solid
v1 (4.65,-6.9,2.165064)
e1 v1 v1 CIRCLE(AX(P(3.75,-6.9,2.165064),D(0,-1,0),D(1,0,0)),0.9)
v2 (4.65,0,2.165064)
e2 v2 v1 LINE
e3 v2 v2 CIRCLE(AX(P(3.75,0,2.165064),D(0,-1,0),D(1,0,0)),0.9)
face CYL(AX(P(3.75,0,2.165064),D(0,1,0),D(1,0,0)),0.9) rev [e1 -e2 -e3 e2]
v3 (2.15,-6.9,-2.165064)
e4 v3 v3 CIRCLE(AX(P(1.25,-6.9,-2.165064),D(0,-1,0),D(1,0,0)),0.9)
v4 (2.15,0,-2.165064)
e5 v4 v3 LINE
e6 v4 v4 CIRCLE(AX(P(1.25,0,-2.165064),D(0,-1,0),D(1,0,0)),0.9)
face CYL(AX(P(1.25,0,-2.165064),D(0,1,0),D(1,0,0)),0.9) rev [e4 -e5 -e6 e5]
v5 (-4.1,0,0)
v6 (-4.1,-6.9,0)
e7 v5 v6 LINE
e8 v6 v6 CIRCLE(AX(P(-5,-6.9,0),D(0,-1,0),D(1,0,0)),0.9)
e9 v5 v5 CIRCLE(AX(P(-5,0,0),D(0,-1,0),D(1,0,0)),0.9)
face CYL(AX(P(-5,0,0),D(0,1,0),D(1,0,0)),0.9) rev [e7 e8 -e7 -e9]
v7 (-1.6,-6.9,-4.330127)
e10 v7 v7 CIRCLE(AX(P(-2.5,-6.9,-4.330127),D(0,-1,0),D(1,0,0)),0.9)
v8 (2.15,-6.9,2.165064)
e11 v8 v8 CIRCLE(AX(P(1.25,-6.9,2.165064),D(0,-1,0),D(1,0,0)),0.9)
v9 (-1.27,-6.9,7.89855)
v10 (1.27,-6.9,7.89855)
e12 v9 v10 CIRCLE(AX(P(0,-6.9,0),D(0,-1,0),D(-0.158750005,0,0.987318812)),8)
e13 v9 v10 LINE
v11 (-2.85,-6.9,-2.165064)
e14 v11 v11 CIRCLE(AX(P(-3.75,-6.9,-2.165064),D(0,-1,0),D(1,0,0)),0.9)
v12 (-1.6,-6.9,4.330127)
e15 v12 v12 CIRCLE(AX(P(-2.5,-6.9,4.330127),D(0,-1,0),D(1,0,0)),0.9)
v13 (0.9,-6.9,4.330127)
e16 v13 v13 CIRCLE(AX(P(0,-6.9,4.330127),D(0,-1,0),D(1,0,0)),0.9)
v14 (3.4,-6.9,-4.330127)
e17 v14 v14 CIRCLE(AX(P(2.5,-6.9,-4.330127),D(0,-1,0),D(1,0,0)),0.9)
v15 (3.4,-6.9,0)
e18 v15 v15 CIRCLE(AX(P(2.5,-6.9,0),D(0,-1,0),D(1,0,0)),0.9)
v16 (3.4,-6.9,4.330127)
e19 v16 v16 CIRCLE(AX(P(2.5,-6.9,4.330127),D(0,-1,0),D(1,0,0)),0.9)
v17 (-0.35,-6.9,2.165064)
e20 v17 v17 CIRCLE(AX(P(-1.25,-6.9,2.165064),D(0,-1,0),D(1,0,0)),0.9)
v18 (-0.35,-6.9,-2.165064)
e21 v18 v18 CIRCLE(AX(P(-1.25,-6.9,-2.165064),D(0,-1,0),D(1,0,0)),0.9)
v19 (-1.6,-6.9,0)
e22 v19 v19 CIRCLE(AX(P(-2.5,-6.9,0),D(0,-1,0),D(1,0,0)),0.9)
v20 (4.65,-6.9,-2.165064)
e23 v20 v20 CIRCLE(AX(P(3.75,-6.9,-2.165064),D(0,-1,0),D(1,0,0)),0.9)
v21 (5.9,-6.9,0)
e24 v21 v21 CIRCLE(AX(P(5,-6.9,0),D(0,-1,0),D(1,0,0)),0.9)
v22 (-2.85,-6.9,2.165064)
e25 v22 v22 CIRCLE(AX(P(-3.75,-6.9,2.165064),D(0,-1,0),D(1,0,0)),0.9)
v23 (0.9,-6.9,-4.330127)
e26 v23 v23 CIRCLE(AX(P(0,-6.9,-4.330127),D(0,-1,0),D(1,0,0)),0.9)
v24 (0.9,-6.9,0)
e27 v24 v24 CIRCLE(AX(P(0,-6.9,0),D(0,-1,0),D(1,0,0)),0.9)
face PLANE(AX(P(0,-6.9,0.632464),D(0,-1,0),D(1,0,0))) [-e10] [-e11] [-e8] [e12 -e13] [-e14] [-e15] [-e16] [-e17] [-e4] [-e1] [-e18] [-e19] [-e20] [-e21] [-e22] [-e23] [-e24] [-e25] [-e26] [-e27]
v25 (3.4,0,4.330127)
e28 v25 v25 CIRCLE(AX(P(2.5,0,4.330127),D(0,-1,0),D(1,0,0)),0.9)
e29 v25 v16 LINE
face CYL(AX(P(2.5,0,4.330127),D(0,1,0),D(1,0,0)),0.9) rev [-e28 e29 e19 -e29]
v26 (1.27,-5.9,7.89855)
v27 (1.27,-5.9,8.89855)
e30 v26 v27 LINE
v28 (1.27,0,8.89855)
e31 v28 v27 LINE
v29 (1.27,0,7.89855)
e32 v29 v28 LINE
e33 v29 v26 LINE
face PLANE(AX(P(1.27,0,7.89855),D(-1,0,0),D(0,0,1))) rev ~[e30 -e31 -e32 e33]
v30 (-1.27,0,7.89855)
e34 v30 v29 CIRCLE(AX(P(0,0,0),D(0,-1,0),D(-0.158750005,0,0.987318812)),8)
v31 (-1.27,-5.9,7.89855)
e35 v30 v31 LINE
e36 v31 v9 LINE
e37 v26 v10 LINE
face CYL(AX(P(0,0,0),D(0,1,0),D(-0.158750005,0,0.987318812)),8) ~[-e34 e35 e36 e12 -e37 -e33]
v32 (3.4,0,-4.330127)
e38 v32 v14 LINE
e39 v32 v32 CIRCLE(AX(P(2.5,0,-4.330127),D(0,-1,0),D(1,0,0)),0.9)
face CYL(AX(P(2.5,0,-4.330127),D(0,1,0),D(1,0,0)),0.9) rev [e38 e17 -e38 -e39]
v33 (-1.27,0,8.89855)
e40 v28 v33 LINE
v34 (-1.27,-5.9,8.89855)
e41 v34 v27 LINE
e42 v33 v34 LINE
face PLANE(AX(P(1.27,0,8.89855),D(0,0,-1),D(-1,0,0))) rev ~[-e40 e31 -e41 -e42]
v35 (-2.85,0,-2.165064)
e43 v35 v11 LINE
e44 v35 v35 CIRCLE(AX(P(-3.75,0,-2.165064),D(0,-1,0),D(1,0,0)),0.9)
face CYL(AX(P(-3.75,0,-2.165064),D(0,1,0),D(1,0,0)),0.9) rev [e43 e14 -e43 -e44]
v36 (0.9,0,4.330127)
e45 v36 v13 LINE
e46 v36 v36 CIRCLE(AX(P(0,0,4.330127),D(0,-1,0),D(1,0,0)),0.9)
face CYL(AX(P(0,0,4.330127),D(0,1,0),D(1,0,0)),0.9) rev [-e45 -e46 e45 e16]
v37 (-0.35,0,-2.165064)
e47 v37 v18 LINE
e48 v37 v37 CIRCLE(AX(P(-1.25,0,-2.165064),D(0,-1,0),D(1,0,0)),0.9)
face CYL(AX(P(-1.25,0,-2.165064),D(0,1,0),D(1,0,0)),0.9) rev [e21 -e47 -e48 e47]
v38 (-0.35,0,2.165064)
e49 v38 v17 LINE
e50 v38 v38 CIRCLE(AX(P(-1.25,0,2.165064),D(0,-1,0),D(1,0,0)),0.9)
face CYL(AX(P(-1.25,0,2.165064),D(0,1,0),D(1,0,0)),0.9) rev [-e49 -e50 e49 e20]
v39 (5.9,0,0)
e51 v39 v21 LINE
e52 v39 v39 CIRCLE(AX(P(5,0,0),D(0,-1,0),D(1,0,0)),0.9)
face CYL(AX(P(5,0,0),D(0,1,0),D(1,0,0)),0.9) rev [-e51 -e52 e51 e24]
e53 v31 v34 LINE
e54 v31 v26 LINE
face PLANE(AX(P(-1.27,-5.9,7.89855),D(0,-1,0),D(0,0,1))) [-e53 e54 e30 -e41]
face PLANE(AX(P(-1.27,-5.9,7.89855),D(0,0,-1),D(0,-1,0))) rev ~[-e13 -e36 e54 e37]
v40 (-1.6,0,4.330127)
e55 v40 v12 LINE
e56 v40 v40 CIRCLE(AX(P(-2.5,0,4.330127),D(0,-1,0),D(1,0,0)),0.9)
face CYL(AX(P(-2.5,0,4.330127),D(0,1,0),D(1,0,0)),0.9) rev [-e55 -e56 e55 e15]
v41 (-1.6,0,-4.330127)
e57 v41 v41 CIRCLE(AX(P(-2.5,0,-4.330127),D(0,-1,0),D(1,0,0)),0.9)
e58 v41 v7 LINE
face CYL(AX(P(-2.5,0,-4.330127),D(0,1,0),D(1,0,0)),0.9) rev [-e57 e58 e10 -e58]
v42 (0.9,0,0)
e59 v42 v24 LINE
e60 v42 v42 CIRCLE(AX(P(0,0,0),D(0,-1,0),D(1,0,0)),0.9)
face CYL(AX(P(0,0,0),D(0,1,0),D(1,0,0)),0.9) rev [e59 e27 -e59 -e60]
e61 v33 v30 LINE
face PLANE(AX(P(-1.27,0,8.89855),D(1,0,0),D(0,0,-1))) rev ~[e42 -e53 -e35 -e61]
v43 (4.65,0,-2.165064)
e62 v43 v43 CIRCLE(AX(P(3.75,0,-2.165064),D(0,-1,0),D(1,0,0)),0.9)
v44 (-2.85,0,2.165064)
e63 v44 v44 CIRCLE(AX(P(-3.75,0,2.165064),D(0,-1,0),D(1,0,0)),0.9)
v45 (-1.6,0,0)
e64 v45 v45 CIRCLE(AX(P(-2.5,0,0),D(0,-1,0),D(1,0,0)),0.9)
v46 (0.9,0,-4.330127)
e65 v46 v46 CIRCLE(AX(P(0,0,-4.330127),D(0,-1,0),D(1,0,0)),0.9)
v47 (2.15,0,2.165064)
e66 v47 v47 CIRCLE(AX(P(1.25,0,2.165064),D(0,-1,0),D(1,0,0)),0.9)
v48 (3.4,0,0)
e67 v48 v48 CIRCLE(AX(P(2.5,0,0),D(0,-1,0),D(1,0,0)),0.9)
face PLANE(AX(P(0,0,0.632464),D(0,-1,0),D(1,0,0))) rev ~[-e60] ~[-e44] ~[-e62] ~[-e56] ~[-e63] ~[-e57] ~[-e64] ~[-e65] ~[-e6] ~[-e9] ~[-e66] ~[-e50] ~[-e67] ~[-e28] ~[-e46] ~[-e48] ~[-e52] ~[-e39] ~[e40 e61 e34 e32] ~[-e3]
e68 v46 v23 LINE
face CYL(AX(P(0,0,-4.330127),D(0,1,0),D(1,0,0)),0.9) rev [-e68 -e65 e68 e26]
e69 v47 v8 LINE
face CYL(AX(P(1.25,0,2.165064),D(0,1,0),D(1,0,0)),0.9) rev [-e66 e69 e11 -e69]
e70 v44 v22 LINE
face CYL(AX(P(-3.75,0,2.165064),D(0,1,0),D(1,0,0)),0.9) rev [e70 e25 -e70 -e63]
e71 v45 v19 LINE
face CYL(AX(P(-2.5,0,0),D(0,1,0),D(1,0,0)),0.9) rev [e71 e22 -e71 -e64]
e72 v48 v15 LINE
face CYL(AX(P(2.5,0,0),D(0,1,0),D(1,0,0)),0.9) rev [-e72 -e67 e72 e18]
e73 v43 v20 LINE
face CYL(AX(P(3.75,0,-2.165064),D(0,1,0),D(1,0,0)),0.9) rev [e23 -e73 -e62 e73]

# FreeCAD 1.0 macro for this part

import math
import FreeCAD as App
import Part
import Sketcher
Q = App.Units.Quantity

doc = App.newDocument("Part")
body = doc.addObject("PartDesign::Body", "Body")

# Sketch on XZ plane
sketch1 = body.newObject("Sketcher::SketchObject", "Sketch")
sketch1.AttachmentSupport = (doc.getObject("XZ_Plane"), [""])
sketch1.MapMode = "FlatFace"
sketch1.addGeometry(Part.LineSegment(App.Vector(-1.27, 8.89855, 0), App.Vector(-1.27, 7.89855, 0)), False)
sketch1.addGeometry(Part.ArcOfCircle(Part.Circle(App.Vector(0, 0, 0), App.Vector(0, 0, 1), 8), math.radians(99.134349), math.radians(440.865651)), False)
sketch1.addGeometry(Part.LineSegment(App.Vector(1.27, 7.89855, 0), App.Vector(1.27, 8.89855, 0)), False)
sketch1.addGeometry(Part.LineSegment(App.Vector(1.27, 8.89855, 0), App.Vector(-1.27, 8.89855, 0)), False)
sketch1.addGeometry(Part.Circle(App.Vector(-2.5, -4.330127, 0), App.Vector(0, 0, 1), 0.9), False)
sketch1.addGeometry(Part.Circle(App.Vector(-3.75, -2.165064, 0), App.Vector(0, 0, 1), 0.9), False)
sketch1.addGeometry(Part.Circle(App.Vector(-1.25, -2.165064, 0), App.Vector(0, 0, 1), 0.9), False)
sketch1.addGeometry(Part.Circle(App.Vector(0, -4.330127, 0), App.Vector(0, 0, 1), 0.9), False)
sketch1.addGeometry(Part.Circle(App.Vector(2.5, -4.330127, 0), App.Vector(0, 0, 1), 0.9), False)
sketch1.addGeometry(Part.Circle(App.Vector(1.25, -2.165064, 0), App.Vector(0, 0, 1), 0.9), False)
sketch1.addGeometry(Part.Circle(App.Vector(3.75, -2.165064, 0), App.Vector(0, 0, 1), 0.9), False)
sketch1.addGeometry(Part.Circle(App.Vector(-5, 0, 0), App.Vector(0, 0, 1), 0.9), False)
sketch1.addGeometry(Part.Circle(App.Vector(-3.75, 2.165064, 0), App.Vector(0, 0, 1), 0.9), False)
sketch1.addGeometry(Part.Circle(App.Vector(-2.5, 0, 0), App.Vector(0, 0, 1), 0.9), False)
sketch1.addGeometry(Part.Circle(App.Vector(-1.25, 2.165064, 0), App.Vector(0, 0, 1), 0.9), False)
sketch1.addGeometry(Part.Circle(App.Vector(-2.5, 4.330127, 0), App.Vector(0, 0, 1), 0.9), False)
sketch1.addGeometry(Part.Circle(App.Vector(0, 0, 0), App.Vector(0, 0, 1), 0.9), False)
sketch1.addGeometry(Part.Circle(App.Vector(2.5, 0, 0), App.Vector(0, 0, 1), 0.9), False)
sketch1.addGeometry(Part.Circle(App.Vector(1.25, 2.165064, 0), App.Vector(0, 0, 1), 0.9), False)
sketch1.addGeometry(Part.Circle(App.Vector(5, 0, 0), App.Vector(0, 0, 1), 0.9), False)
sketch1.addGeometry(Part.Circle(App.Vector(3.75, 2.165064, 0), App.Vector(0, 0, 1), 0.9), False)
sketch1.addGeometry(Part.Circle(App.Vector(0, 4.330127, 0), App.Vector(0, 0, 1), 0.9), False)
sketch1.addGeometry(Part.Circle(App.Vector(2.5, 4.330127, 0), App.Vector(0, 0, 1), 0.9), False)
sketch1.addConstraint(Sketcher.Constraint("Coincident", 0, 2, 1, 1))
sketch1.addConstraint(Sketcher.Constraint("Coincident", 1, 2, 2, 1))
sketch1.addConstraint(Sketcher.Constraint("Coincident", 2, 2, 3, 1))
sketch1.addConstraint(Sketcher.Constraint("Coincident", 3, 2, 0, 1))
sketch1.addConstraint(Sketcher.Constraint("Vertical", 0))
sketch1.addConstraint(Sketcher.Constraint("Vertical", 2))
sketch1.addConstraint(Sketcher.Constraint("Horizontal", 3))
sketch1.addConstraint(Sketcher.Constraint("Coincident", 1, 3, -1, 1))
sketch1.addConstraint(Sketcher.Constraint("Coincident", 16, 3, -1, 1))
sketch1.addConstraint(Sketcher.Constraint("Equal", 4, 5))
sketch1.addConstraint(Sketcher.Constraint("Equal", 5, 6))
sketch1.addConstraint(Sketcher.Constraint("Equal", 6, 7))
sketch1.addConstraint(Sketcher.Constraint("Equal", 7, 8))
sketch1.addConstraint(Sketcher.Constraint("Equal", 8, 9))
sketch1.addConstraint(Sketcher.Constraint("Equal", 9, 10))
sketch1.addConstraint(Sketcher.Constraint("Equal", 10, 11))
sketch1.addConstraint(Sketcher.Constraint("Equal", 11, 12))
sketch1.addConstraint(Sketcher.Constraint("Equal", 12, 13))
sketch1.addConstraint(Sketcher.Constraint("Equal", 13, 14))
sketch1.addConstraint(Sketcher.Constraint("Equal", 14, 15))
sketch1.addConstraint(Sketcher.Constraint("Equal", 15, 16))
sketch1.addConstraint(Sketcher.Constraint("Equal", 16, 17))
sketch1.addConstraint(Sketcher.Constraint("Equal", 17, 18))
sketch1.addConstraint(Sketcher.Constraint("Equal", 18, 19))
sketch1.addConstraint(Sketcher.Constraint("Equal", 19, 20))
sketch1.addConstraint(Sketcher.Constraint("Equal", 20, 21))
sketch1.addConstraint(Sketcher.Constraint("Equal", 21, 22))
sketch1.addConstraint(Sketcher.Constraint("Symmetric", 10, 3, 12, 3, -1, 1))
sketch1.addConstraint(Sketcher.Constraint("Symmetric", 9, 3, 14, 3, -1, 1))
sketch1.addConstraint(Sketcher.Constraint("Symmetric", 8, 3, 15, 3, -1, 1))
sketch1.addConstraint(Sketcher.Constraint("Symmetric", 13, 3, 17, 3, -1, 1))
sketch1.addConstraint(Sketcher.Constraint("Symmetric", 6, 3, 18, 3, -1, 1))
sketch1.addConstraint(Sketcher.Constraint("Symmetric", 11, 3, 19, 3, -1, 1))
sketch1.addConstraint(Sketcher.Constraint("Symmetric", 5, 3, 20, 3, -1, 1))
sketch1.addConstraint(Sketcher.Constraint("Symmetric", 7, 3, 21, 3, -1, 1))
sketch1.addConstraint(Sketcher.Constraint("Symmetric", 4, 3, 22, 3, -1, 1))
sketch1.addConstraint(Sketcher.Constraint("Symmetric", 4, 3, 8, 3, -2))
sketch1.addConstraint(Sketcher.Constraint("Symmetric", 6, 3, 9, 3, -2))
sketch1.addConstraint(Sketcher.Constraint("Symmetric", 5, 3, 10, 3, -2))
sketch1.addConstraint(Sketcher.Constraint("PointOnObject", 7, 3, -2))
sketch1.addConstraint(Sketcher.Constraint("PointOnObject", 11, 3, -1))
sketch1.addConstraint(Sketcher.Constraint("PointOnObject", 13, 3, -1))
sketch1.addConstraint(Sketcher.Constraint("Horizontal", 5, 3, 6, 3))
sketch1.addConstraint(Sketcher.Constraint("Horizontal", 4, 3, 7, 3))
sketch1.addConstraint(Sketcher.Constraint("Horizontal", 0, 2, 1, 2))
sketch1.addConstraint(Sketcher.Constraint("Vertical", 4, 3, 13, 3))
sketch1.addConstraint(Sketcher.Constraint("Radius", 1, Q("8 mm")))
sketch1.addConstraint(Sketcher.Constraint("Diameter", 4, Q("1.8 mm")))
sketch1.addConstraint(Sketcher.Constraint("DistanceY", 0, 2, 0, 1, Q("1 mm")))
sketch1.addConstraint(Sketcher.Constraint("DistanceX", 11, 3, -1, 1, Q("5 mm")))
sketch1.addConstraint(Sketcher.Constraint("DistanceX", 4, 3, 8, 3, Q("5 mm")))
sketch1.addConstraint(Sketcher.Constraint("DistanceX", 6, 3, 10, 3, Q("5 mm")))
sketch1.addConstraint(Sketcher.Constraint("DistanceX", 3, 2, 3, 1, Q("2.54 mm")))
sketch1.addConstraint(Sketcher.Constraint("DistanceX", 5, 3, 6, 3, Q("2.5 mm")))
sketch1.addConstraint(Sketcher.Constraint("DistanceY", 5, 3, 12, 3, Q("4.330128 mm")))
sketch1.addConstraint(Sketcher.Constraint("DistanceY", 4, 3, 12, 3, Q("6.495191 mm")))
pad1 = body.newObject("PartDesign::Pad", "Pad")
pad1.Profile = sketch1
pad1.Length = 6.9

# Sketch on YZ plane
sketch2 = body.newObject("Sketcher::SketchObject", "Sketch001")
sketch2.AttachmentSupport = (doc.getObject("YZ_Plane"), [""])
sketch2.MapMode = "FlatFace"
sketch2.AttachmentOffset = App.Placement(App.Vector(0, 0, -1.27), App.Rotation())
sketch2.addGeometry(Part.LineSegment(App.Vector(-5.9, 8.89855, 0), App.Vector(-5.9, 7.89855, 0)), False)
sketch2.addGeometry(Part.LineSegment(App.Vector(-5.9, 7.89855, 0), App.Vector(-6.9, 7.89855, 0)), False)
sketch2.addGeometry(Part.LineSegment(App.Vector(-6.9, 7.89855, 0), App.Vector(-6.9, 8.89855, 0)), False)
sketch2.addGeometry(Part.LineSegment(App.Vector(-6.9, 8.89855, 0), App.Vector(-5.9, 8.89855, 0)), False)
sketch2.addConstraint(Sketcher.Constraint("Coincident", 0, 2, 1, 1))
sketch2.addConstraint(Sketcher.Constraint("Coincident", 1, 2, 2, 1))
sketch2.addConstraint(Sketcher.Constraint("Coincident", 2, 2, 3, 1))
sketch2.addConstraint(Sketcher.Constraint("Coincident", 3, 2, 0, 1))
sketch2.addConstraint(Sketcher.Constraint("Vertical", 0))
sketch2.addConstraint(Sketcher.Constraint("Horizontal", 1))
sketch2.addConstraint(Sketcher.Constraint("Vertical", 2))
sketch2.addConstraint(Sketcher.Constraint("Horizontal", 3))
sketch2.addConstraint(Sketcher.Constraint("Equal", 3, 0))
sketch2.addConstraint(Sketcher.Constraint("DistanceX", 1, 2, 1, 1, Q("1 mm")))
sketch2.addConstraint(Sketcher.Constraint("DistanceX", 0, 2, -1, 1, Q("5.9 mm")))
sketch2.addConstraint(Sketcher.Constraint("DistanceY", -1, 1, 0, 2, Q("7.89855 mm")))
pocket1 = body.newObject("PartDesign::Pocket", "Pocket")
pocket1.Profile = sketch2
pocket1.Length = 2.54
pocket1.Reversed = True

doc.recompute()
